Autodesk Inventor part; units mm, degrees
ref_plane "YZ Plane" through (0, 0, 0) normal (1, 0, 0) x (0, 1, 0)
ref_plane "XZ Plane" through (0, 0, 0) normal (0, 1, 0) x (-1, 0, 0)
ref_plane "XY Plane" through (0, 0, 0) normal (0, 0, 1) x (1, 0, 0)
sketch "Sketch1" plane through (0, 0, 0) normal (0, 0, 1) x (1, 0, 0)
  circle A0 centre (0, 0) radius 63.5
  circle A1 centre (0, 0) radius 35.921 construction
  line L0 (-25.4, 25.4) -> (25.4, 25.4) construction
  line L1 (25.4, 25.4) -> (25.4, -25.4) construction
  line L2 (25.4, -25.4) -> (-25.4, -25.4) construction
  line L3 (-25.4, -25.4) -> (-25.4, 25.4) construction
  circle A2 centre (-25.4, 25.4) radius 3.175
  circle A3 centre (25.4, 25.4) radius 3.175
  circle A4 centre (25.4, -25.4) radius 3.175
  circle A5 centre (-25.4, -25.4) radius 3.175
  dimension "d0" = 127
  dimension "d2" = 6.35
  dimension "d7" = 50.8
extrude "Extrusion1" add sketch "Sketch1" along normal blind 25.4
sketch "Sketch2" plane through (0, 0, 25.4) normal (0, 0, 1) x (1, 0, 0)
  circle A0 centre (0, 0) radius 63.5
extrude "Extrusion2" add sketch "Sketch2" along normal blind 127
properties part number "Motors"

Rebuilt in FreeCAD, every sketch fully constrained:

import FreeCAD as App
import Part
import Sketcher
Q = App.Units.Quantity

doc = App.newDocument("Part")
body = doc.addObject("PartDesign::Body", "Body")

# Sketch on XY plane
sketch1 = doc.addObject("Sketcher::SketchObject", "Sketch")
body.addObject(sketch1)
sketch1.AttachmentSupport = (doc.XY_Plane, [""])
sketch1.MapMode = "FlatFace"
sketch1.addGeometry(Part.Circle(App.Vector(0, 0, 0), App.Vector(0, 0, 1), 63.5), False)
sketch1.addGeometry(Part.Circle(App.Vector(-25.4, -25.4, 0), App.Vector(0, 0, 1), 3.175), False)
sketch1.addGeometry(Part.Circle(App.Vector(25.4, -25.4, 0), App.Vector(0, 0, 1), 3.175), False)
sketch1.addGeometry(Part.Circle(App.Vector(-25.4, 25.4, 0), App.Vector(0, 0, 1), 3.175), False)
sketch1.addGeometry(Part.Circle(App.Vector(25.4, 25.4, 0), App.Vector(0, 0, 1), 3.175), False)
sketch1.addConstraint(Sketcher.Constraint("Coincident", 0, 3, -1, 1))
sketch1.addConstraint(Sketcher.Constraint("Equal", 1, 2))
sketch1.addConstraint(Sketcher.Constraint("Equal", 2, 3))
sketch1.addConstraint(Sketcher.Constraint("Equal", 3, 4))
sketch1.addConstraint(Sketcher.Constraint("Symmetric", 2, 3, 3, 3, -1, 1))
sketch1.addConstraint(Sketcher.Constraint("Symmetric", 1, 3, 4, 3, -1, 1))
sketch1.addConstraint(Sketcher.Constraint("Symmetric", 1, 3, 2, 3, -2))
sketch1.addConstraint(Sketcher.Constraint("Diameter", 0, Q("5 in")))
sketch1.addConstraint(Sketcher.Constraint("Diameter", 1, Q("0.25 in")))
sketch1.addConstraint(Sketcher.Constraint("DistanceX", 1, 3, 2, 3, Q("2 in")))
sketch1.addConstraint(Sketcher.Constraint("DistanceY", 1, 3, 3, 3, Q("2 in")))
pad1 = doc.addObject("PartDesign::Pad", "Pad")
body.addObject(pad1)
pad1.Profile = sketch1
pad1.Length = Q("1 in")

# Sketch on XY plane
sketch2 = doc.addObject("Sketcher::SketchObject", "Sketch001")
body.addObject(sketch2)
sketch2.AttachmentSupport = (doc.XY_Plane, [""])
sketch2.MapMode = "FlatFace"
sketch2.AttachmentOffset = App.Placement(App.Vector(0, 0, 1 * 25.4), App.Rotation())
sketch2.addGeometry(Part.Circle(App.Vector(0, 0, 0), App.Vector(0, 0, 1), 63.5), False)
sketch2.addConstraint(Sketcher.Constraint("Coincident", 0, 3, -1, 1))
sketch2.addConstraint(Sketcher.Constraint("Diameter", 0, Q("5 in")))
pad2 = doc.addObject("PartDesign::Pad", "Pad001")
body.addObject(pad2)
pad2.Profile = sketch2
pad2.Length = Q("5 in")

doc.recompute()
